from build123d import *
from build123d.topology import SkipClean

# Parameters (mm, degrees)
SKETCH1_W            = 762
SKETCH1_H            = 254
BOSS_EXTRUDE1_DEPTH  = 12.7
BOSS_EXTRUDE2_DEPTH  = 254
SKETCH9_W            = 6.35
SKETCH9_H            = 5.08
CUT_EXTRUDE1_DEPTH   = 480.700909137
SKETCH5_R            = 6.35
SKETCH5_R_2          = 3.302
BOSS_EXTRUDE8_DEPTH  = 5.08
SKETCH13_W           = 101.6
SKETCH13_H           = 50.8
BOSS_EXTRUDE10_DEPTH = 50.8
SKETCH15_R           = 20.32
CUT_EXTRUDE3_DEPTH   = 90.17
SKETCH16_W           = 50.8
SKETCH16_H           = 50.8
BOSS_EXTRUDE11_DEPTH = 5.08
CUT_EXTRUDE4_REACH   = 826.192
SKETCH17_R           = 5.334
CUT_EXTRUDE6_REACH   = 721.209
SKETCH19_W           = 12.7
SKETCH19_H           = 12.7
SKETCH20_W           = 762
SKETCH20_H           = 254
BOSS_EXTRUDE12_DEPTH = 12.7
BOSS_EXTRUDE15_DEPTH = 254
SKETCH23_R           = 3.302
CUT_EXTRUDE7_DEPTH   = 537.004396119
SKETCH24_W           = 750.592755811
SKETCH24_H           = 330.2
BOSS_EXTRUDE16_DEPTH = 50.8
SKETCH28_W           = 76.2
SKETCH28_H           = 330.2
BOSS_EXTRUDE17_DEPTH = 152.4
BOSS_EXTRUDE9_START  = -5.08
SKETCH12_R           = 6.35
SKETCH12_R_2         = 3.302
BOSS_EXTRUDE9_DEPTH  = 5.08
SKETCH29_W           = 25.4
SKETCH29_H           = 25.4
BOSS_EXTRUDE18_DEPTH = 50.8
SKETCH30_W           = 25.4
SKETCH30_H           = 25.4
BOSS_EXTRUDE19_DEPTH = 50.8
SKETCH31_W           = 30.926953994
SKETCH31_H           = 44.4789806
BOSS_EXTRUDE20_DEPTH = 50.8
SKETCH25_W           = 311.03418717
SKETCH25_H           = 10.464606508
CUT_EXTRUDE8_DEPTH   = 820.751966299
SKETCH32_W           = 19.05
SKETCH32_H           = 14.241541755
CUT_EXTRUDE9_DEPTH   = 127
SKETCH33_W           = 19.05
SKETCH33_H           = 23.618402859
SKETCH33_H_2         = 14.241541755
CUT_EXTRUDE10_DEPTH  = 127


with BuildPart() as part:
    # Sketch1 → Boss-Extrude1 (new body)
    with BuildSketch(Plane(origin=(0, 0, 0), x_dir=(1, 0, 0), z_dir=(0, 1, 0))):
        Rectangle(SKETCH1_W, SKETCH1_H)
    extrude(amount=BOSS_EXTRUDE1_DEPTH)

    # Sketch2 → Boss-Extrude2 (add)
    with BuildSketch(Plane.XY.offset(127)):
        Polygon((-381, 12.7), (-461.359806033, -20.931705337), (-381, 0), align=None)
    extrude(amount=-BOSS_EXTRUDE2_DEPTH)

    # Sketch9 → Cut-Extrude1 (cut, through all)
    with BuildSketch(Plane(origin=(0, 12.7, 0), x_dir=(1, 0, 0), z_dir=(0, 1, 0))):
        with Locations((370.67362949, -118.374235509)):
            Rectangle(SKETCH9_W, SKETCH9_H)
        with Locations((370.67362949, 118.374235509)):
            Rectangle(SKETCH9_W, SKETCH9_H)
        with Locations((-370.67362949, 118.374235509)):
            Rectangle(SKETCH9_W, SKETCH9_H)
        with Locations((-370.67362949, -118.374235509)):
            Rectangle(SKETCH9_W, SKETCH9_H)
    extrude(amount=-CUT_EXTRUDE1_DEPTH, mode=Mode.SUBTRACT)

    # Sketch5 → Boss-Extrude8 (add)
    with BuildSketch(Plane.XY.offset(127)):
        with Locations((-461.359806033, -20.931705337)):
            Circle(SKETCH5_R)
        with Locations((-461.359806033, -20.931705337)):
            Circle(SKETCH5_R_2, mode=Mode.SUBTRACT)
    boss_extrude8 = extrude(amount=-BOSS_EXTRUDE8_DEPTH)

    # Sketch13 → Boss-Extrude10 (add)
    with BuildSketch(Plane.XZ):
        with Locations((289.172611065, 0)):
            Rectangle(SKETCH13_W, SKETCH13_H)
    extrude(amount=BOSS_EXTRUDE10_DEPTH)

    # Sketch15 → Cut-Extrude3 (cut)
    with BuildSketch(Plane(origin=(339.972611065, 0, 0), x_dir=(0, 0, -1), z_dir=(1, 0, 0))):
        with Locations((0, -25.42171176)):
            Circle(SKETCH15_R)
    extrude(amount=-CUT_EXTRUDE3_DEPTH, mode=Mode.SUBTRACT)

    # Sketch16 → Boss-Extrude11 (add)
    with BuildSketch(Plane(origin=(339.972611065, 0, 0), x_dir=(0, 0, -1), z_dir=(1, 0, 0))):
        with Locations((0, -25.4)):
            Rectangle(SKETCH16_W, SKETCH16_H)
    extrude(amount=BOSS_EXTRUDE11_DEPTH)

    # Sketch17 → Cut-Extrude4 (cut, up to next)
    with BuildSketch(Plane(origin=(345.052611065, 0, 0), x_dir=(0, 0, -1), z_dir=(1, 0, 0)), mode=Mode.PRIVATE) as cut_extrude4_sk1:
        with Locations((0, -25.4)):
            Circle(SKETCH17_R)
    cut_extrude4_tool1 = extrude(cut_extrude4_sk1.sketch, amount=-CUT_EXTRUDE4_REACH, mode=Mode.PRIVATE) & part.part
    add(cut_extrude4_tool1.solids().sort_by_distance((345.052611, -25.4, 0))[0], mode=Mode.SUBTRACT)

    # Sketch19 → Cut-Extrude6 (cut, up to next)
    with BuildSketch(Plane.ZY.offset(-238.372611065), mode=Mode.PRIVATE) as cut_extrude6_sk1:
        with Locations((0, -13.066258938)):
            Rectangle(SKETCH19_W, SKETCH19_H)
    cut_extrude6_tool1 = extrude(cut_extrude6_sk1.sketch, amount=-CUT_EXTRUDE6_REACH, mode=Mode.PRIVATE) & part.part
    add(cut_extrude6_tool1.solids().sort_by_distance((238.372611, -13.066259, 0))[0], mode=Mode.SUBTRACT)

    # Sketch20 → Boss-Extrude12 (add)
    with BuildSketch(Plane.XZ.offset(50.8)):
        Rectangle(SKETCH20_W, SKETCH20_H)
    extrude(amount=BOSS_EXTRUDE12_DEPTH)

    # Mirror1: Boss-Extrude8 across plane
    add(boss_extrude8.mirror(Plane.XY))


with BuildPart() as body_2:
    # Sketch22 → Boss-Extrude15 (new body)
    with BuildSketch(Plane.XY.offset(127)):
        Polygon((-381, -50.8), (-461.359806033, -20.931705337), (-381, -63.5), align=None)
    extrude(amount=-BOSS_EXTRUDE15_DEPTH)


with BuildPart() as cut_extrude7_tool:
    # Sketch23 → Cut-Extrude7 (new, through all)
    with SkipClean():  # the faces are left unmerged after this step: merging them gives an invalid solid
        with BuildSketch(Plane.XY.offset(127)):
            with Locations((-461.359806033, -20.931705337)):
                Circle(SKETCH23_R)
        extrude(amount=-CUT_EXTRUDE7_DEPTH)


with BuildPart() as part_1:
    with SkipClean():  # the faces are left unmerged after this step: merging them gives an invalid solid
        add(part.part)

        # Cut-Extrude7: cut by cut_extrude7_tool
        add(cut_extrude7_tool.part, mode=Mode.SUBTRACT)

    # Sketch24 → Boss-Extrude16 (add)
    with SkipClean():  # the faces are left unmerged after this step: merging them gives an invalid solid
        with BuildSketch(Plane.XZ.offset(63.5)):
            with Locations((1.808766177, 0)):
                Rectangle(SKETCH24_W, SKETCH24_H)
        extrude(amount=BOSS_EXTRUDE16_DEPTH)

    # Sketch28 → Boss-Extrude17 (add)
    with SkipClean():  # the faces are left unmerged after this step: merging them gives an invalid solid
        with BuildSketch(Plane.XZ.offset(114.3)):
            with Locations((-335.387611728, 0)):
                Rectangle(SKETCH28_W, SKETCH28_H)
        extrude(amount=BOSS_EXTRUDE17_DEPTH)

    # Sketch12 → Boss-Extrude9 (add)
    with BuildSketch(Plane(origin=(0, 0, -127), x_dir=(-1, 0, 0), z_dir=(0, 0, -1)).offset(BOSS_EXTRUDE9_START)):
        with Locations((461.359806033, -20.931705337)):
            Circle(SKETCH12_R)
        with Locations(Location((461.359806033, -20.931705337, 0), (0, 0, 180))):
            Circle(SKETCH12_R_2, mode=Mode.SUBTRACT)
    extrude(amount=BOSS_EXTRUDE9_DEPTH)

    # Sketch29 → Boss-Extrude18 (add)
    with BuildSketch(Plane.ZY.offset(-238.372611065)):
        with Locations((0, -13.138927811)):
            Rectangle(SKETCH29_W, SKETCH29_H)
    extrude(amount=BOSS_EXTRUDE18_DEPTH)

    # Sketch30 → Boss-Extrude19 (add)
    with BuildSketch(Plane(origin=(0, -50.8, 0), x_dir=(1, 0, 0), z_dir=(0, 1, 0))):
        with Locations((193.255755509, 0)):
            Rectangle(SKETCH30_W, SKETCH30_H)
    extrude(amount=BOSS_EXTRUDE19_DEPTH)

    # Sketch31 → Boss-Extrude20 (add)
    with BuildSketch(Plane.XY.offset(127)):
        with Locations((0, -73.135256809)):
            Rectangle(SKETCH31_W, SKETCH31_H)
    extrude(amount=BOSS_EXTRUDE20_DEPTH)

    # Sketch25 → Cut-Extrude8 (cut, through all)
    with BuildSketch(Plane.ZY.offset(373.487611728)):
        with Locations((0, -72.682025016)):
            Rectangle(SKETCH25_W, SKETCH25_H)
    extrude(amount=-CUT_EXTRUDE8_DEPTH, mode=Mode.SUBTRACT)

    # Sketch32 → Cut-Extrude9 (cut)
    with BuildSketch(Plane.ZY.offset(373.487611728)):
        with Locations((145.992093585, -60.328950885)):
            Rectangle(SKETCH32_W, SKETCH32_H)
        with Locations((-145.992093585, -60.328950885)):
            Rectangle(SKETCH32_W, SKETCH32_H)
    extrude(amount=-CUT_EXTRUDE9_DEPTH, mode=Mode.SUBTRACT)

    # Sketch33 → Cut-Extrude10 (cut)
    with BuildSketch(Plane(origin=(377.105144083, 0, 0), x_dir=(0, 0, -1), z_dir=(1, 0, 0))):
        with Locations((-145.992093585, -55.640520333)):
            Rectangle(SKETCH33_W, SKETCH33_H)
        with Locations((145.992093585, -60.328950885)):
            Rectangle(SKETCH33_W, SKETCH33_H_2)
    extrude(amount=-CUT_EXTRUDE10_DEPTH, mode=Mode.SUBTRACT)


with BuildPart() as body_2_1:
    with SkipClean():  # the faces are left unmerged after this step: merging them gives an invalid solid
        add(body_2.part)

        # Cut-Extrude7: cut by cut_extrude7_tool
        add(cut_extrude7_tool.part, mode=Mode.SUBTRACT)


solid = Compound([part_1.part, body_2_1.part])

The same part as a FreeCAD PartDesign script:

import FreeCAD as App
import Part
import Sketcher

V = App.Vector
Q = App.Units.Quantity

doc = App.newDocument("Part")
body = doc.addObject("PartDesign::Body", "Body")

# Sketch on XZ plane
sketch1 = body.newObject("Sketcher::SketchObject", "Sketch")
sketch1.AttachmentSupport = (doc.getObject("XZ_Plane"), [""])
sketch1.MapMode = "FlatFace"
sketch1.addGeometry(Part.LineSegment(V(-381, -127, 0), V(-381, 127, 0)), False)
sketch1.addGeometry(Part.LineSegment(V(-381, 127, 0), V(381, 127, 0)), False)
sketch1.addGeometry(Part.LineSegment(V(381, 127, 0), V(381, -127, 0)), False)
sketch1.addGeometry(Part.LineSegment(V(381, -127, 0), V(-381, -127, 0)), False)
sketch1.addConstraint(Sketcher.Constraint("Coincident", 0, 2, 1, 1))
sketch1.addConstraint(Sketcher.Constraint("Coincident", 1, 2, 2, 1))
sketch1.addConstraint(Sketcher.Constraint("Coincident", 2, 2, 3, 1))
sketch1.addConstraint(Sketcher.Constraint("Coincident", 3, 2, 0, 1))
sketch1.addConstraint(Sketcher.Constraint("Vertical", 0))
sketch1.addConstraint(Sketcher.Constraint("Horizontal", 1))
sketch1.addConstraint(Sketcher.Constraint("Vertical", 2))
sketch1.addConstraint(Sketcher.Constraint("Horizontal", 3))
sketch1.addConstraint(Sketcher.Constraint("Symmetric", 0, 2, 2, 2, -1, 1))
sketch1.addConstraint(Sketcher.Constraint("DistanceX", 1, 1, 1, 2, Q("30 in")))
sketch1.addConstraint(Sketcher.Constraint("DistanceY", 0, 1, 0, 2, Q("10 in")))
pad1 = body.newObject("PartDesign::Pad", "Pad")
pad1.Profile = sketch1
pad1.Length = Q("0.5 in")
pad1.Reversed = True

# Sketch on XY plane
sketch2 = body.newObject("Sketcher::SketchObject", "Sketch001")
sketch2.AttachmentSupport = (doc.getObject("XY_Plane"), [""])
sketch2.MapMode = "FlatFace"
sketch2.AttachmentOffset = App.Placement(V(0, 0, 5 * 25.4), App.Rotation())
sketch2.addGeometry(Part.LineSegment(V(-381, 13, 0), V(-461, -21, 0)), False)
sketch2.addGeometry(Part.LineSegment(V(-461, -21, 0), V(-381, 0, 0)), False)
sketch2.addGeometry(Part.LineSegment(V(-381, 0, 0), V(-381, 13, 0)), False)
sketch2.addConstraint(Sketcher.Constraint("Coincident", 0, 2, 1, 1))
sketch2.addConstraint(Sketcher.Constraint("Coincident", 1, 2, 2, 1))
sketch2.addConstraint(Sketcher.Constraint("Coincident", 2, 2, 0, 1))
sketch2.addConstraint(Sketcher.Constraint("Vertical", 2))
sketch2.addConstraint(Sketcher.Constraint("PointOnObject", 1, 2, -1))
sketch2.addConstraint(Sketcher.Constraint("DistanceY", 2, 1, 2, 2, Q("0.5 in")))
sketch2.addConstraint(Sketcher.Constraint("DistanceX", 1, 2, -1, 1, Q("15 in")))
sketch2.addConstraint(Sketcher.Constraint("Angle", 0, Q("-157.290006 deg")))
sketch2.addConstraint(Sketcher.Constraint("Distance", 0, Q("87.113662 mm")))
pad2 = body.newObject("PartDesign::Pad", "Pad001")
pad2.Profile = sketch2
pad2.Length = Q("10 in")
pad2.Reversed = True

# Sketch on XZ plane
sketch3 = body.newObject("Sketcher::SketchObject", "Sketch002")
sketch3.AttachmentSupport = (doc.getObject("XZ_Plane"), [""])
sketch3.MapMode = "FlatFace"
sketch3.AttachmentOffset = App.Placement(V(0, 0, -0.5 * 25.4), App.Rotation())
sketch3.addGeometry(Part.LineSegment(V(367, 116, 0), V(367, 121, 0)), False)
sketch3.addGeometry(Part.LineSegment(V(367, 121, 0), V(374, 121, 0)), False)
sketch3.addGeometry(Part.LineSegment(V(374, 121, 0), V(374, 116, 0)), False)
sketch3.addGeometry(Part.LineSegment(V(374, 116, 0), V(367, 116, 0)), False)
sketch3.addGeometry(Part.LineSegment(V(367, -121, 0), V(367, -116, 0)), False)
sketch3.addGeometry(Part.LineSegment(V(367, -116, 0), V(374, -116, 0)), False)
sketch3.addGeometry(Part.LineSegment(V(374, -116, 0), V(374, -121, 0)), False)
sketch3.addGeometry(Part.LineSegment(V(374, -121, 0), V(367, -121, 0)), False)
sketch3.addGeometry(Part.LineSegment(V(-374, -121, 0), V(-374, -116, 0)), False)
sketch3.addGeometry(Part.LineSegment(V(-374, -116, 0), V(-367, -116, 0)), False)
sketch3.addGeometry(Part.LineSegment(V(-367, -116, 0), V(-367, -121, 0)), False)
sketch3.addGeometry(Part.LineSegment(V(-367, -121, 0), V(-374, -121, 0)), False)
sketch3.addGeometry(Part.LineSegment(V(-374, 116, 0), V(-374, 121, 0)), False)
sketch3.addGeometry(Part.LineSegment(V(-374, 121, 0), V(-367, 121, 0)), False)
sketch3.addGeometry(Part.LineSegment(V(-367, 121, 0), V(-367, 116, 0)), False)
sketch3.addGeometry(Part.LineSegment(V(-367, 116, 0), V(-374, 116, 0)), False)
sketch3.addConstraint(Sketcher.Constraint("Coincident", 0, 2, 1, 1))
sketch3.addConstraint(Sketcher.Constraint("Coincident", 1, 2, 2, 1))
sketch3.addConstraint(Sketcher.Constraint("Coincident", 2, 2, 3, 1))
sketch3.addConstraint(Sketcher.Constraint("Coincident", 3, 2, 0, 1))
sketch3.addConstraint(Sketcher.Constraint("Coincident", 4, 2, 5, 1))
sketch3.addConstraint(Sketcher.Constraint("Coincident", 5, 2, 6, 1))
sketch3.addConstraint(Sketcher.Constraint("Coincident", 6, 2, 7, 1))
sketch3.addConstraint(Sketcher.Constraint("Coincident", 7, 2, 4, 1))
sketch3.addConstraint(Sketcher.Constraint("Coincident", 8, 2, 9, 1))
sketch3.addConstraint(Sketcher.Constraint("Coincident", 9, 2, 10, 1))
sketch3.addConstraint(Sketcher.Constraint("Coincident", 10, 2, 11, 1))
sketch3.addConstraint(Sketcher.Constraint("Coincident", 11, 2, 8, 1))
sketch3.addConstraint(Sketcher.Constraint("Coincident", 12, 2, 13, 1))
sketch3.addConstraint(Sketcher.Constraint("Coincident", 13, 2, 14, 1))
sketch3.addConstraint(Sketcher.Constraint("Coincident", 14, 2, 15, 1))
sketch3.addConstraint(Sketcher.Constraint("Coincident", 15, 2, 12, 1))
sketch3.addConstraint(Sketcher.Constraint("Vertical", 0))
sketch3.addConstraint(Sketcher.Constraint("Horizontal", 1))
sketch3.addConstraint(Sketcher.Constraint("Vertical", 2))
sketch3.addConstraint(Sketcher.Constraint("Horizontal", 3))
sketch3.addConstraint(Sketcher.Constraint("Vertical", 4))
sketch3.addConstraint(Sketcher.Constraint("Horizontal", 5))
sketch3.addConstraint(Sketcher.Constraint("Vertical", 6))
sketch3.addConstraint(Sketcher.Constraint("Horizontal", 7))
sketch3.addConstraint(Sketcher.Constraint("Vertical", 8))
sketch3.addConstraint(Sketcher.Constraint("Horizontal", 9))
sketch3.addConstraint(Sketcher.Constraint("Vertical", 10))
sketch3.addConstraint(Sketcher.Constraint("Horizontal", 11))
sketch3.addConstraint(Sketcher.Constraint("Vertical", 12))
sketch3.addConstraint(Sketcher.Constraint("Horizontal", 13))
sketch3.addConstraint(Sketcher.Constraint("Vertical", 14))
sketch3.addConstraint(Sketcher.Constraint("Horizontal", 15))
sketch3.addConstraint(Sketcher.Constraint("Symmetric", 2, 2, 8, 2, -1, 1))
sketch3.addConstraint(Sketcher.Constraint("Symmetric", 0, 2, 10, 2, -1, 1))
sketch3.addConstraint(Sketcher.Constraint("Symmetric", 6, 2, 12, 2, -1, 1))
sketch3.addConstraint(Sketcher.Constraint("Symmetric", 4, 2, 14, 2, -1, 1))
sketch3.addConstraint(Sketcher.Constraint("Symmetric", 5, 2, 8, 2, -2))
sketch3.addConstraint(Sketcher.Constraint("Symmetric", 7, 2, 10, 2, -2))
sketch3.addConstraint(Sketcher.Constraint("DistanceY", 0, 1, 0, 2, Q("0.2 in")))
sketch3.addConstraint(Sketcher.Constraint("DistanceX", 1, 1, 1, 2, Q("0.25 in")))
sketch3.addConstraint(Sketcher.Constraint("DistanceX", 8, 2, 4, 2, Q("29.1869 in")))
sketch3.addConstraint(Sketcher.Constraint("DistanceY", 4, 2, 3, 2, Q("231.668471 mm")))
pocket1 = body.newObject("PartDesign::Pocket", "Pocket")
pocket1.Profile = sketch3
pocket1.Type = "ThroughAll"
pocket1.Reversed = True

# Sketch on XY plane
sketch4 = body.newObject("Sketcher::SketchObject", "Sketch003")
sketch4.AttachmentSupport = (doc.getObject("XY_Plane"), [""])
sketch4.MapMode = "FlatFace"
sketch4.AttachmentOffset = App.Placement(V(0, 0, 5 * 25.4), App.Rotation())
sketch4.addGeometry(Part.Circle(V(-461.4, -20.9, 0), V(0, 0, 1), 6.3), False)
sketch4.addGeometry(Part.Circle(V(-461.4, -20.9, 0), V(0, 0, 1), 3.3), False)
sketch4.addConstraint(Sketcher.Constraint("Coincident", 1, 3, 0, 3))
sketch4.addConstraint(Sketcher.Constraint("Diameter", 0, Q("0.5 in")))
sketch4.addConstraint(Sketcher.Constraint("Diameter", 1, Q("0.26 in")))
sketch4.addConstraint(Sketcher.Constraint("DistanceX", 0, 3, -1, 1, Q("461.359806 mm")))
sketch4.addConstraint(Sketcher.Constraint("DistanceY", 0, 3, -1, 1, Q("20.931705 mm")))
pad3 = body.newObject("PartDesign::Pad", "Pad002")
pad3.Profile = sketch4
pad3.Length = Q("0.2 in")
pad3.Reversed = True

# Sketch on XZ plane
sketch5 = body.newObject("Sketcher::SketchObject", "Sketch004")
sketch5.AttachmentSupport = (doc.getObject("XZ_Plane"), [""])
sketch5.MapMode = "FlatFace"
sketch5.addGeometry(Part.LineSegment(V(238, 25, 0), V(238, -25, 0)), False)
sketch5.addGeometry(Part.LineSegment(V(238, -25, 0), V(340, -25, 0)), False)
sketch5.addGeometry(Part.LineSegment(V(340, -25, 0), V(340, 25, 0)), False)
sketch5.addGeometry(Part.LineSegment(V(340, 25, 0), V(238, 25, 0)), False)
sketch5.addConstraint(Sketcher.Constraint("Coincident", 0, 2, 1, 1))
sketch5.addConstraint(Sketcher.Constraint("Coincident", 1, 2, 2, 1))
sketch5.addConstraint(Sketcher.Constraint("Coincident", 2, 2, 3, 1))
sketch5.addConstraint(Sketcher.Constraint("Coincident", 3, 2, 0, 1))
sketch5.addConstraint(Sketcher.Constraint("Vertical", 0))
sketch5.addConstraint(Sketcher.Constraint("Horizontal", 1))
sketch5.addConstraint(Sketcher.Constraint("Vertical", 2))
sketch5.addConstraint(Sketcher.Constraint("Horizontal", 3))
sketch5.addConstraint(Sketcher.Constraint("DistanceX", 1, 1, 1, 2, Q("4 in")))
sketch5.addConstraint(Sketcher.Constraint("DistanceY", 0, 2, 0, 1, Q("2 in")))
sketch5.addConstraint(Sketcher.Constraint("DistanceY", 0, 2, -1, 1, Q("1 in")))
sketch5.addConstraint(Sketcher.Constraint("DistanceX", -1, 1, 0, 2, Q("238.372611 mm")))
pad4 = body.newObject("PartDesign::Pad", "Pad003")
pad4.Profile = sketch5
pad4.Length = Q("2 in")

# Sketch on YZ plane
sketch6 = body.newObject("Sketcher::SketchObject", "Sketch005")
sketch6.AttachmentSupport = (doc.getObject("YZ_Plane"), [""])
sketch6.MapMode = "FlatFace"
sketch6.AttachmentOffset = App.Placement(V(0, 0, 339.972611), App.Rotation())
sketch6.addGeometry(Part.Circle(V(-25, 0, 0), V(0, 0, 1), 20), False)
sketch6.addConstraint(Sketcher.Constraint("PointOnObject", 0, 3, -1))
sketch6.addConstraint(Sketcher.Constraint("Diameter", 0, Q("1.6 in")))
sketch6.addConstraint(Sketcher.Constraint("DistanceX", 0, 3, -1, 1, Q("25.421712 mm")))
pocket2 = body.newObject("PartDesign::Pocket", "Pocket001")
pocket2.Profile = sketch6
pocket2.Length = Q("3.55 in")

# Sketch on YZ plane
sketch7 = body.newObject("Sketcher::SketchObject", "Sketch006")
sketch7.AttachmentSupport = (doc.getObject("YZ_Plane"), [""])
sketch7.MapMode = "FlatFace"
sketch7.AttachmentOffset = App.Placement(V(0, 0, 339.972611), App.Rotation())
sketch7.addGeometry(Part.LineSegment(V(0, 25, 0), V(-51, 25, 0)), False)
sketch7.addGeometry(Part.LineSegment(V(-51, 25, 0), V(-51, -25, 0)), False)
sketch7.addGeometry(Part.LineSegment(V(-51, -25, 0), V(0, -25, 0)), False)
sketch7.addGeometry(Part.LineSegment(V(0, -25, 0), V(0, 25, 0)), False)
sketch7.addConstraint(Sketcher.Constraint("Coincident", 0, 2, 1, 1))
sketch7.addConstraint(Sketcher.Constraint("Coincident", 1, 2, 2, 1))
sketch7.addConstraint(Sketcher.Constraint("Coincident", 2, 2, 3, 1))
sketch7.addConstraint(Sketcher.Constraint("Coincident", 3, 2, 0, 1))
sketch7.addConstraint(Sketcher.Constraint("Horizontal", 0))
sketch7.addConstraint(Sketcher.Constraint("Vertical", 1))
sketch7.addConstraint(Sketcher.Constraint("Horizontal", 2))
sketch7.addConstraint(Sketcher.Constraint("Vertical", 3))
sketch7.addConstraint(Sketcher.Constraint("Symmetric", 2, 2, 3, 2, -1, 1))
sketch7.addConstraint(Sketcher.Constraint("Equal", 2, 1))
sketch7.addConstraint(Sketcher.Constraint("DistanceX", 0, 2, 0, 1, Q("2 in")))
pad5 = body.newObject("PartDesign::Pad", "Pad004")
pad5.Profile = sketch7
pad5.Length = Q("0.2 in")

# Sketch on YZ plane
sketch8 = body.newObject("Sketcher::SketchObject", "Sketch007")
sketch8.AttachmentSupport = (doc.getObject("YZ_Plane"), [""])
sketch8.MapMode = "FlatFace"
sketch8.AttachmentOffset = App.Placement(V(0, 0, 345.052611), App.Rotation())
sketch8.addGeometry(Part.Circle(V(-25, 0, 0), V(0, 0, 1), 5), False)
sketch8.addConstraint(Sketcher.Constraint("PointOnObject", 0, 3, -1))
sketch8.addConstraint(Sketcher.Constraint("Diameter", 0, Q("0.42 in")))
sketch8.addConstraint(Sketcher.Constraint("DistanceX", 0, 3, -1, 1, Q("1 in")))
pocket3 = body.newObject("PartDesign::Pocket", "Pocket002")
pocket3.Profile = sketch8
pocket3.Type = "UpToFirst"

# Sketch on YZ plane
sketch9 = body.newObject("Sketcher::SketchObject", "Sketch008")
sketch9.AttachmentSupport = (doc.getObject("YZ_Plane"), [""])
sketch9.MapMode = "FlatFace"
sketch9.AttachmentOffset = App.Placement(V(0, 0, 238.372611), App.Rotation())
sketch9.addGeometry(Part.LineSegment(V(-7, -6, 0), V(-19, -6, 0)), False)
sketch9.addGeometry(Part.LineSegment(V(-19, -6, 0), V(-19, 6, 0)), False)
sketch9.addGeometry(Part.LineSegment(V(-19, 6, 0), V(-7, 6, 0)), False)
sketch9.addGeometry(Part.LineSegment(V(-7, 6, 0), V(-7, -6, 0)), False)
sketch9.addConstraint(Sketcher.Constraint("Coincident", 0, 2, 1, 1))
sketch9.addConstraint(Sketcher.Constraint("Coincident", 1, 2, 2, 1))
sketch9.addConstraint(Sketcher.Constraint("Coincident", 2, 2, 3, 1))
sketch9.addConstraint(Sketcher.Constraint("Coincident", 3, 2, 0, 1))
sketch9.addConstraint(Sketcher.Constraint("Horizontal", 0))
sketch9.addConstraint(Sketcher.Constraint("Vertical", 1))
sketch9.addConstraint(Sketcher.Constraint("Horizontal", 2))
sketch9.addConstraint(Sketcher.Constraint("Vertical", 3))
sketch9.addConstraint(Sketcher.Constraint("Equal", 2, 1))
sketch9.addConstraint(Sketcher.Constraint("DistanceX", 0, 2, 0, 1, Q("0.5 in")))
sketch9.addConstraint(Sketcher.Constraint("DistanceY", 0, 2, -1, 1, Q("0.25 in")))
sketch9.addConstraint(Sketcher.Constraint("DistanceX", 0, 2, -1, 1, Q("19.416259 mm")))
pocket4 = body.newObject("PartDesign::Pocket", "Pocket003")
pocket4.Profile = sketch9
pocket4.Type = "UpToFirst"
pocket4.Reversed = True

# Sketch on XZ plane
sketch10 = body.newObject("Sketcher::SketchObject", "Sketch009")
sketch10.AttachmentSupport = (doc.getObject("XZ_Plane"), [""])
sketch10.MapMode = "FlatFace"
sketch10.AttachmentOffset = App.Placement(V(0, 0, 2 * 25.4), App.Rotation())
sketch10.addGeometry(Part.LineSegment(V(-381, 127, 0), V(-381, -127, 0)), False)
sketch10.addGeometry(Part.LineSegment(V(-381, -127, 0), V(381, -127, 0)), False)
sketch10.addGeometry(Part.LineSegment(V(381, -127, 0), V(381, 127, 0)), False)
sketch10.addGeometry(Part.LineSegment(V(381, 127, 0), V(-381, 127, 0)), False)
sketch10.addConstraint(Sketcher.Constraint("Coincident", 0, 2, 1, 1))
sketch10.addConstraint(Sketcher.Constraint("Coincident", 1, 2, 2, 1))
sketch10.addConstraint(Sketcher.Constraint("Coincident", 2, 2, 3, 1))
sketch10.addConstraint(Sketcher.Constraint("Coincident", 3, 2, 0, 1))
sketch10.addConstraint(Sketcher.Constraint("Vertical", 0))
sketch10.addConstraint(Sketcher.Constraint("Horizontal", 1))
sketch10.addConstraint(Sketcher.Constraint("Vertical", 2))
sketch10.addConstraint(Sketcher.Constraint("Horizontal", 3))
sketch10.addConstraint(Sketcher.Constraint("Symmetric", 0, 2, 2, 2, -1, 1))
sketch10.addConstraint(Sketcher.Constraint("DistanceX", 1, 1, 1, 2, Q("30 in")))
sketch10.addConstraint(Sketcher.Constraint("DistanceY", 0, 2, 0, 1, Q("10 in")))
pad6 = body.newObject("PartDesign::Pad", "Pad005")
pad6.Profile = sketch10
pad6.Length = Q("0.5 in")
doc.recompute()

mirrored = body.newObject("PartDesign::Mirrored", "Mirrored")
mirrored.Originals = [pad3]
mirrored.MirrorPlane = (doc.getObject("XY_Plane"), [""])
body.Tip = mirrored
body2 = doc.addObject("PartDesign::Body", "Body001")

# Sketch on XY plane
sketch11 = body2.newObject("Sketcher::SketchObject", "Sketch010")
sketch11.AttachmentSupport = (doc.getObject("XY_Plane001"), [""])
sketch11.MapMode = "FlatFace"
sketch11.AttachmentOffset = App.Placement(V(0, 0, 5 * 25.4), App.Rotation())
sketch11.addGeometry(Part.LineSegment(V(-381, -51, 0), V(-461, -21, 0)), False)
sketch11.addGeometry(Part.LineSegment(V(-461, -21, 0), V(-381, -64, 0)), False)
sketch11.addGeometry(Part.LineSegment(V(-381, -64, 0), V(-381, -51, 0)), False)
sketch11.addConstraint(Sketcher.Constraint("Coincident", 0, 2, 1, 1))
sketch11.addConstraint(Sketcher.Constraint("Coincident", 1, 2, 2, 1))
sketch11.addConstraint(Sketcher.Constraint("Coincident", 2, 2, 0, 1))
sketch11.addConstraint(Sketcher.Constraint("Vertical", 2))
sketch11.addConstraint(Sketcher.Constraint("DistanceY", 2, 1, 2, 2, Q("0.5 in")))
sketch11.addConstraint(Sketcher.Constraint("DistanceX", 1, 2, -1, 1, Q("15 in")))
sketch11.addConstraint(Sketcher.Constraint("DistanceY", 2, 2, -1, 1, Q("2 in")))
sketch11.addConstraint(Sketcher.Constraint("Distance", 1, Q("90.938211 mm")))
sketch11.addConstraint(Sketcher.Constraint("Distance", 0, Q("85.731053 mm")))
pad7 = body2.newObject("PartDesign::Pad", "Pad006")
pad7.Profile = sketch11
pad7.Length = Q("10 in")
pad7.Reversed = True
body3 = doc.addObject("PartDesign::Body", "Body002")

# Sketch on XY plane
sketch12 = body3.newObject("Sketcher::SketchObject", "Sketch011")
sketch12.AttachmentSupport = (doc.getObject("XY_Plane002"), [""])
sketch12.MapMode = "FlatFace"
sketch12.AttachmentOffset = App.Placement(V(0, 0, 5 * 25.4), App.Rotation())
sketch12.addGeometry(Part.Circle(V(-461.4, -20.9, 0), V(0, 0, 1), 3.3), False)
sketch12.addConstraint(Sketcher.Constraint("Diameter", 0, Q("0.26 in")))
sketch12.addConstraint(Sketcher.Constraint("DistanceX", 0, 3, -1, 1, Q("461.359806 mm")))
sketch12.addConstraint(Sketcher.Constraint("DistanceY", 0, 3, -1, 1, Q("20.931705 mm")))
pad8 = body3.newObject("PartDesign::Pad", "Pad007")
pad8.Profile = sketch12
pad8.Length = 537.004396
pad8.Reversed = True
doc.recompute()

body4 = doc.addObject("PartDesign::Body", "Body003")
body4.BaseFeature = body3
boolean = body.newObject("PartDesign::Boolean", "Boolean")
boolean.Type = "Cut"
boolean.addObjects([body4])
doc.recompute()

# Sketch on XZ plane
sketch13 = body.newObject("Sketcher::SketchObject", "Sketch012")
sketch13.AttachmentSupport = (doc.getObject("XZ_Plane"), [""])
sketch13.MapMode = "FlatFace"
sketch13.AttachmentOffset = App.Placement(V(0, 0, 2.5 * 25.4), App.Rotation())
sketch13.addGeometry(Part.LineSegment(V(-373, 165, 0), V(-373, -165, 0)), False)
sketch13.addGeometry(Part.LineSegment(V(-373, -165, 0), V(377, -165, 0)), False)
sketch13.addGeometry(Part.LineSegment(V(377, -165, 0), V(377, 165, 0)), False)
sketch13.addGeometry(Part.LineSegment(V(377, 165, 0), V(-373, 165, 0)), False)
sketch13.addConstraint(Sketcher.Constraint("Coincident", 0, 2, 1, 1))
sketch13.addConstraint(Sketcher.Constraint("Coincident", 1, 2, 2, 1))
sketch13.addConstraint(Sketcher.Constraint("Coincident", 2, 2, 3, 1))
sketch13.addConstraint(Sketcher.Constraint("Coincident", 3, 2, 0, 1))
sketch13.addConstraint(Sketcher.Constraint("Vertical", 0))
sketch13.addConstraint(Sketcher.Constraint("Horizontal", 1))
sketch13.addConstraint(Sketcher.Constraint("Vertical", 2))
sketch13.addConstraint(Sketcher.Constraint("Horizontal", 3))
sketch13.addConstraint(Sketcher.Constraint("DistanceY", 0, 2, 0, 1, Q("13 in")))
sketch13.addConstraint(Sketcher.Constraint("DistanceY", 0, 2, -1, 1, Q("6.5 in")))
sketch13.addConstraint(Sketcher.Constraint("DistanceX", 1, 1, 1, 2, Q("750.592756 mm")))
sketch13.addConstraint(Sketcher.Constraint("DistanceX", 0, 2, -1, 1, Q("373.487612 mm")))
pad9 = body.newObject("PartDesign::Pad", "Pad008")
pad9.Profile = sketch13
pad9.Length = Q("2 in")

# Sketch on XZ plane
sketch14 = body.newObject("Sketcher::SketchObject", "Sketch013")
sketch14.AttachmentSupport = (doc.getObject("XZ_Plane"), [""])
sketch14.MapMode = "FlatFace"
sketch14.AttachmentOffset = App.Placement(V(0, 0, 4.5 * 25.4), App.Rotation())
sketch14.addGeometry(Part.LineSegment(V(-373, 165, 0), V(-373, -165, 0)), False)
sketch14.addGeometry(Part.LineSegment(V(-373, -165, 0), V(-297, -165, 0)), False)
sketch14.addGeometry(Part.LineSegment(V(-297, -165, 0), V(-297, 165, 0)), False)
sketch14.addGeometry(Part.LineSegment(V(-297, 165, 0), V(-373, 165, 0)), False)
sketch14.addConstraint(Sketcher.Constraint("Coincident", 0, 2, 1, 1))
sketch14.addConstraint(Sketcher.Constraint("Coincident", 1, 2, 2, 1))
sketch14.addConstraint(Sketcher.Constraint("Coincident", 2, 2, 3, 1))
sketch14.addConstraint(Sketcher.Constraint("Coincident", 3, 2, 0, 1))
sketch14.addConstraint(Sketcher.Constraint("Vertical", 0))
sketch14.addConstraint(Sketcher.Constraint("Horizontal", 1))
sketch14.addConstraint(Sketcher.Constraint("Vertical", 2))
sketch14.addConstraint(Sketcher.Constraint("Horizontal", 3))
sketch14.addConstraint(Sketcher.Constraint("DistanceX", 1, 1, 1, 2, Q("3 in")))
sketch14.addConstraint(Sketcher.Constraint("DistanceY", 0, 2, 0, 1, Q("13 in")))
sketch14.addConstraint(Sketcher.Constraint("DistanceY", 0, 2, -1, 1, Q("6.5 in")))
sketch14.addConstraint(Sketcher.Constraint("DistanceX", 0, 2, -1, 1, Q("373.487612 mm")))
pad10 = body.newObject("PartDesign::Pad", "Pad009")
pad10.Profile = sketch14
pad10.Length = Q("6 in")

# Sketch on XY plane
sketch15 = body.newObject("Sketcher::SketchObject", "Sketch014")
sketch15.AttachmentSupport = (doc.getObject("XY_Plane"), [""])
sketch15.MapMode = "FlatFace"
sketch15.AttachmentOffset = App.Placement(V(0, 0, -4.8 * 25.4), App.Rotation())
sketch15.addGeometry(Part.Circle(V(-461.4, -20.9, 0), V(0, 0, 1), 6.3), False)
sketch15.addGeometry(Part.Circle(V(-461.4, -20.9, 0), V(0, 0, 1), 3.3), False)
sketch15.addConstraint(Sketcher.Constraint("Coincident", 1, 3, 0, 3))
sketch15.addConstraint(Sketcher.Constraint("Diameter", 0, Q("0.5 in")))
sketch15.addConstraint(Sketcher.Constraint("Diameter", 1, Q("0.26 in")))
sketch15.addConstraint(Sketcher.Constraint("DistanceX", 0, 3, -1, 1, Q("461.359806 mm")))
sketch15.addConstraint(Sketcher.Constraint("DistanceY", 0, 3, -1, 1, Q("20.931705 mm")))
pad11 = body.newObject("PartDesign::Pad", "Pad010")
pad11.Profile = sketch15
pad11.Length = Q("0.2 in")
pad11.Reversed = True

# Sketch on YZ plane
sketch16 = body.newObject("Sketcher::SketchObject", "Sketch015")
sketch16.AttachmentSupport = (doc.getObject("YZ_Plane"), [""])
sketch16.MapMode = "FlatFace"
sketch16.AttachmentOffset = App.Placement(V(0, 0, 238.372611), App.Rotation())
sketch16.addGeometry(Part.LineSegment(V(0, -13, 0), V(-26, -13, 0)), False)
sketch16.addGeometry(Part.LineSegment(V(-26, -13, 0), V(-26, 13, 0)), False)
sketch16.addGeometry(Part.LineSegment(V(-26, 13, 0), V(0, 13, 0)), False)
sketch16.addGeometry(Part.LineSegment(V(0, 13, 0), V(0, -13, 0)), False)
sketch16.addConstraint(Sketcher.Constraint("Coincident", 0, 2, 1, 1))
sketch16.addConstraint(Sketcher.Constraint("Coincident", 1, 2, 2, 1))
sketch16.addConstraint(Sketcher.Constraint("Coincident", 2, 2, 3, 1))
sketch16.addConstraint(Sketcher.Constraint("Coincident", 3, 2, 0, 1))
sketch16.addConstraint(Sketcher.Constraint("Horizontal", 0))
sketch16.addConstraint(Sketcher.Constraint("Vertical", 1))
sketch16.addConstraint(Sketcher.Constraint("Horizontal", 2))
sketch16.addConstraint(Sketcher.Constraint("Vertical", 3))
sketch16.addConstraint(Sketcher.Constraint("Equal", 2, 1))
sketch16.addConstraint(Sketcher.Constraint("DistanceX", 0, 2, 0, 1, Q("1 in")))
sketch16.addConstraint(Sketcher.Constraint("DistanceY", 0, 2, -1, 1, Q("0.5 in")))
sketch16.addConstraint(Sketcher.Constraint("DistanceX", 0, 2, -1, 1, Q("25.838928 mm")))
pad12 = body.newObject("PartDesign::Pad", "Pad011")
pad12.Profile = sketch16
pad12.Length = Q("2 in")
pad12.Reversed = True

# Sketch on XZ plane
sketch17 = body.newObject("Sketcher::SketchObject", "Sketch016")
sketch17.AttachmentSupport = (doc.getObject("XZ_Plane"), [""])
sketch17.MapMode = "FlatFace"
sketch17.AttachmentOffset = App.Placement(V(0, 0, 2 * 25.4), App.Rotation())
sketch17.addGeometry(Part.LineSegment(V(181, -13, 0), V(181, 13, 0)), False)
sketch17.addGeometry(Part.LineSegment(V(181, 13, 0), V(206, 13, 0)), False)
sketch17.addGeometry(Part.LineSegment(V(206, 13, 0), V(206, -13, 0)), False)
sketch17.addGeometry(Part.LineSegment(V(206, -13, 0), V(181, -13, 0)), False)
sketch17.addConstraint(Sketcher.Constraint("Coincident", 0, 2, 1, 1))
sketch17.addConstraint(Sketcher.Constraint("Coincident", 1, 2, 2, 1))
sketch17.addConstraint(Sketcher.Constraint("Coincident", 2, 2, 3, 1))
sketch17.addConstraint(Sketcher.Constraint("Coincident", 3, 2, 0, 1))
sketch17.addConstraint(Sketcher.Constraint("Vertical", 0))
sketch17.addConstraint(Sketcher.Constraint("Horizontal", 1))
sketch17.addConstraint(Sketcher.Constraint("Vertical", 2))
sketch17.addConstraint(Sketcher.Constraint("Horizontal", 3))
sketch17.addConstraint(Sketcher.Constraint("Equal", 3, 0))
sketch17.addConstraint(Sketcher.Constraint("DistanceX", 1, 1, 1, 2, Q("1 in")))
sketch17.addConstraint(Sketcher.Constraint("DistanceY", -1, 1, 0, 2, Q("0.5 in")))
sketch17.addConstraint(Sketcher.Constraint("DistanceX", -1, 1, 0, 2, Q("180.555756 mm")))
pad13 = body.newObject("PartDesign::Pad", "Pad012")
pad13.Profile = sketch17
pad13.Length = Q("2 in")
pad13.Reversed = True

# Sketch on XY plane
sketch18 = body.newObject("Sketcher::SketchObject", "Sketch017")
sketch18.AttachmentSupport = (doc.getObject("XY_Plane"), [""])
sketch18.MapMode = "FlatFace"
sketch18.AttachmentOffset = App.Placement(V(0, 0, 5 * 25.4), App.Rotation())
sketch18.addGeometry(Part.LineSegment(V(-15, -51, 0), V(-15, -95, 0)), False)
sketch18.addGeometry(Part.LineSegment(V(-15, -95, 0), V(15, -95, 0)), False)
sketch18.addGeometry(Part.LineSegment(V(15, -95, 0), V(15, -51, 0)), False)
sketch18.addGeometry(Part.LineSegment(V(15, -51, 0), V(-15, -51, 0)), False)
sketch18.addConstraint(Sketcher.Constraint("Coincident", 0, 2, 1, 1))
sketch18.addConstraint(Sketcher.Constraint("Coincident", 1, 2, 2, 1))
sketch18.addConstraint(Sketcher.Constraint("Coincident", 2, 2, 3, 1))
sketch18.addConstraint(Sketcher.Constraint("Coincident", 3, 2, 0, 1))
sketch18.addConstraint(Sketcher.Constraint("Vertical", 0))
sketch18.addConstraint(Sketcher.Constraint("Horizontal", 1))
sketch18.addConstraint(Sketcher.Constraint("Vertical", 2))
sketch18.addConstraint(Sketcher.Constraint("Horizontal", 3))
sketch18.addConstraint(Sketcher.Constraint("DistanceY", 0, 2, 0, 1, Q("44.478981 mm")))
sketch18.addConstraint(Sketcher.Constraint("DistanceX", 1, 1, 1, 2, Q("30.926954 mm")))
sketch18.addConstraint(Sketcher.Constraint("DistanceX", 0, 2, -1, 1, Q("15.463477 mm")))
sketch18.addConstraint(Sketcher.Constraint("DistanceY", 0, 2, -1, 1, Q("95.374747 mm")))
pad14 = body.newObject("PartDesign::Pad", "Pad013")
pad14.Profile = sketch18
pad14.Length = Q("2 in")

# Sketch on YZ plane
sketch19 = body.newObject("Sketcher::SketchObject", "Sketch018")
sketch19.AttachmentSupport = (doc.getObject("YZ_Plane"), [""])
sketch19.MapMode = "FlatFace"
sketch19.AttachmentOffset = App.Placement(V(0, 0, -373.487612), App.Rotation())
sketch19.addGeometry(Part.LineSegment(V(-67, -156, 0), V(-78, -156, 0)), False)
sketch19.addGeometry(Part.LineSegment(V(-78, -156, 0), V(-78, 156, 0)), False)
sketch19.addGeometry(Part.LineSegment(V(-78, 156, 0), V(-67, 156, 0)), False)
sketch19.addGeometry(Part.LineSegment(V(-67, 156, 0), V(-67, -156, 0)), False)
sketch19.addConstraint(Sketcher.Constraint("Coincident", 0, 2, 1, 1))
sketch19.addConstraint(Sketcher.Constraint("Coincident", 1, 2, 2, 1))
sketch19.addConstraint(Sketcher.Constraint("Coincident", 2, 2, 3, 1))
sketch19.addConstraint(Sketcher.Constraint("Coincident", 3, 2, 0, 1))
sketch19.addConstraint(Sketcher.Constraint("Horizontal", 0))
sketch19.addConstraint(Sketcher.Constraint("Vertical", 1))
sketch19.addConstraint(Sketcher.Constraint("Horizontal", 2))
sketch19.addConstraint(Sketcher.Constraint("Vertical", 3))
sketch19.addConstraint(Sketcher.Constraint("DistanceX", 0, 2, 0, 1, Q("10.464607 mm")))
sketch19.addConstraint(Sketcher.Constraint("DistanceY", 1, 1, 1, 2, Q("311.034187 mm")))
sketch19.addConstraint(Sketcher.Constraint("DistanceX", 0, 2, -1, 1, Q("77.914328 mm")))
sketch19.addConstraint(Sketcher.Constraint("DistanceY", 0, 2, -1, 1, Q("155.517094 mm")))
pocket5 = body.newObject("PartDesign::Pocket", "Pocket004")
pocket5.Profile = sketch19
pocket5.Type = "ThroughAll"
pocket5.Reversed = True

# Sketch on YZ plane
sketch20 = body.newObject("Sketcher::SketchObject", "Sketch019")
sketch20.AttachmentSupport = (doc.getObject("YZ_Plane"), [""])
sketch20.MapMode = "FlatFace"
sketch20.AttachmentOffset = App.Placement(V(0, 0, -373.487612), App.Rotation())
sketch20.addGeometry(Part.LineSegment(V(-53, 136, 0), V(-67, 136, 0)), False)
sketch20.addGeometry(Part.LineSegment(V(-67, 136, 0), V(-67, 156, 0)), False)
sketch20.addGeometry(Part.LineSegment(V(-67, 156, 0), V(-53, 156, 0)), False)
sketch20.addGeometry(Part.LineSegment(V(-53, 156, 0), V(-53, 136, 0)), False)
sketch20.addGeometry(Part.LineSegment(V(-53, -156, 0), V(-67, -156, 0)), False)
sketch20.addGeometry(Part.LineSegment(V(-67, -156, 0), V(-67, -136, 0)), False)
sketch20.addGeometry(Part.LineSegment(V(-67, -136, 0), V(-53, -136, 0)), False)
sketch20.addGeometry(Part.LineSegment(V(-53, -136, 0), V(-53, -156, 0)), False)
sketch20.addConstraint(Sketcher.Constraint("Coincident", 0, 2, 1, 1))
sketch20.addConstraint(Sketcher.Constraint("Coincident", 1, 2, 2, 1))
sketch20.addConstraint(Sketcher.Constraint("Coincident", 2, 2, 3, 1))
sketch20.addConstraint(Sketcher.Constraint("Coincident", 3, 2, 0, 1))
sketch20.addConstraint(Sketcher.Constraint("Coincident", 4, 2, 5, 1))
sketch20.addConstraint(Sketcher.Constraint("Coincident", 5, 2, 6, 1))
sketch20.addConstraint(Sketcher.Constraint("Coincident", 6, 2, 7, 1))
sketch20.addConstraint(Sketcher.Constraint("Coincident", 7, 2, 4, 1))
sketch20.addConstraint(Sketcher.Constraint("Horizontal", 0))
sketch20.addConstraint(Sketcher.Constraint("Vertical", 1))
sketch20.addConstraint(Sketcher.Constraint("Horizontal", 2))
sketch20.addConstraint(Sketcher.Constraint("Vertical", 3))
sketch20.addConstraint(Sketcher.Constraint("Horizontal", 4))
sketch20.addConstraint(Sketcher.Constraint("Vertical", 5))
sketch20.addConstraint(Sketcher.Constraint("Horizontal", 6))
sketch20.addConstraint(Sketcher.Constraint("Vertical", 7))
sketch20.addConstraint(Sketcher.Constraint("Symmetric", 1, 2, 4, 2, -1))
sketch20.addConstraint(Sketcher.Constraint("Symmetric", 3, 2, 6, 2, -1))
sketch20.addConstraint(Sketcher.Constraint("DistanceY", 1, 1, 1, 2, Q("0.75 in")))
sketch20.addConstraint(Sketcher.Constraint("DistanceX", 0, 2, 0, 1, Q("14.241542 mm")))
sketch20.addConstraint(Sketcher.Constraint("DistanceX", 0, 2, -1, 1, Q("67.449722 mm")))
sketch20.addConstraint(Sketcher.Constraint("DistanceY", -1, 1, 0, 2, Q("136.467094 mm")))
pocket6 = body.newObject("PartDesign::Pocket", "Pocket005")
pocket6.Profile = sketch20
pocket6.Length = Q("5 in")
pocket6.Reversed = True

# Sketch on YZ plane
sketch21 = body.newObject("Sketcher::SketchObject", "Sketch020")
sketch21.AttachmentSupport = (doc.getObject("YZ_Plane"), [""])
sketch21.MapMode = "FlatFace"
sketch21.AttachmentOffset = App.Placement(V(0, 0, 377.105144), App.Rotation())
sketch21.addGeometry(Part.LineSegment(V(-44, 156, 0), V(-67, 156, 0)), False)
sketch21.addGeometry(Part.LineSegment(V(-67, 156, 0), V(-67, 136, 0)), False)
sketch21.addGeometry(Part.LineSegment(V(-67, 136, 0), V(-44, 136, 0)), False)
sketch21.addGeometry(Part.LineSegment(V(-44, 136, 0), V(-44, 156, 0)), False)
sketch21.addGeometry(Part.LineSegment(V(-53, -136, 0), V(-67, -136, 0)), False)
sketch21.addGeometry(Part.LineSegment(V(-67, -136, 0), V(-67, -156, 0)), False)
sketch21.addGeometry(Part.LineSegment(V(-67, -156, 0), V(-53, -156, 0)), False)
sketch21.addGeometry(Part.LineSegment(V(-53, -156, 0), V(-53, -136, 0)), False)
sketch21.addConstraint(Sketcher.Constraint("Coincident", 0, 2, 1, 1))
sketch21.addConstraint(Sketcher.Constraint("Coincident", 1, 2, 2, 1))
sketch21.addConstraint(Sketcher.Constraint("Coincident", 2, 2, 3, 1))
sketch21.addConstraint(Sketcher.Constraint("Coincident", 3, 2, 0, 1))
sketch21.addConstraint(Sketcher.Constraint("Coincident", 4, 2, 5, 1))
sketch21.addConstraint(Sketcher.Constraint("Coincident", 5, 2, 6, 1))
sketch21.addConstraint(Sketcher.Constraint("Coincident", 6, 2, 7, 1))
sketch21.addConstraint(Sketcher.Constraint("Coincident", 7, 2, 4, 1))
sketch21.addConstraint(Sketcher.Constraint("Horizontal", 0))
sketch21.addConstraint(Sketcher.Constraint("Vertical", 1))
sketch21.addConstraint(Sketcher.Constraint("Horizontal", 2))
sketch21.addConstraint(Sketcher.Constraint("Vertical", 3))
sketch21.addConstraint(Sketcher.Constraint("Horizontal", 4))
sketch21.addConstraint(Sketcher.Constraint("Vertical", 5))
sketch21.addConstraint(Sketcher.Constraint("Horizontal", 6))
sketch21.addConstraint(Sketcher.Constraint("Vertical", 7))
sketch21.addConstraint(Sketcher.Constraint("Symmetric", 1, 2, 4, 2, -1))
sketch21.addConstraint(Sketcher.Constraint("Equal", 3, 5))
sketch21.addConstraint(Sketcher.Constraint("DistanceY", 1, 2, 1, 1, Q("0.75 in")))
sketch21.addConstraint(Sketcher.Constraint("DistanceX", 4, 2, 4, 1, Q("14.241542 mm")))
sketch21.addConstraint(Sketcher.Constraint("DistanceX", 0, 2, 0, 1, Q("23.618403 mm")))
sketch21.addConstraint(Sketcher.Constraint("DistanceX", 0, 2, -1, 1, Q("67.449722 mm")))
sketch21.addConstraint(Sketcher.Constraint("DistanceY", -1, 1, 0, 2, Q("155.517094 mm")))
pocket7 = body.newObject("PartDesign::Pocket", "Pocket006")
pocket7.Profile = sketch21
pocket7.Length = Q("5 in")
doc.recompute()

boolean2 = body2.newObject("PartDesign::Boolean", "Boolean001")
boolean2.Type = "Cut"
boolean2.addObjects([body3])

doc.recompute()
